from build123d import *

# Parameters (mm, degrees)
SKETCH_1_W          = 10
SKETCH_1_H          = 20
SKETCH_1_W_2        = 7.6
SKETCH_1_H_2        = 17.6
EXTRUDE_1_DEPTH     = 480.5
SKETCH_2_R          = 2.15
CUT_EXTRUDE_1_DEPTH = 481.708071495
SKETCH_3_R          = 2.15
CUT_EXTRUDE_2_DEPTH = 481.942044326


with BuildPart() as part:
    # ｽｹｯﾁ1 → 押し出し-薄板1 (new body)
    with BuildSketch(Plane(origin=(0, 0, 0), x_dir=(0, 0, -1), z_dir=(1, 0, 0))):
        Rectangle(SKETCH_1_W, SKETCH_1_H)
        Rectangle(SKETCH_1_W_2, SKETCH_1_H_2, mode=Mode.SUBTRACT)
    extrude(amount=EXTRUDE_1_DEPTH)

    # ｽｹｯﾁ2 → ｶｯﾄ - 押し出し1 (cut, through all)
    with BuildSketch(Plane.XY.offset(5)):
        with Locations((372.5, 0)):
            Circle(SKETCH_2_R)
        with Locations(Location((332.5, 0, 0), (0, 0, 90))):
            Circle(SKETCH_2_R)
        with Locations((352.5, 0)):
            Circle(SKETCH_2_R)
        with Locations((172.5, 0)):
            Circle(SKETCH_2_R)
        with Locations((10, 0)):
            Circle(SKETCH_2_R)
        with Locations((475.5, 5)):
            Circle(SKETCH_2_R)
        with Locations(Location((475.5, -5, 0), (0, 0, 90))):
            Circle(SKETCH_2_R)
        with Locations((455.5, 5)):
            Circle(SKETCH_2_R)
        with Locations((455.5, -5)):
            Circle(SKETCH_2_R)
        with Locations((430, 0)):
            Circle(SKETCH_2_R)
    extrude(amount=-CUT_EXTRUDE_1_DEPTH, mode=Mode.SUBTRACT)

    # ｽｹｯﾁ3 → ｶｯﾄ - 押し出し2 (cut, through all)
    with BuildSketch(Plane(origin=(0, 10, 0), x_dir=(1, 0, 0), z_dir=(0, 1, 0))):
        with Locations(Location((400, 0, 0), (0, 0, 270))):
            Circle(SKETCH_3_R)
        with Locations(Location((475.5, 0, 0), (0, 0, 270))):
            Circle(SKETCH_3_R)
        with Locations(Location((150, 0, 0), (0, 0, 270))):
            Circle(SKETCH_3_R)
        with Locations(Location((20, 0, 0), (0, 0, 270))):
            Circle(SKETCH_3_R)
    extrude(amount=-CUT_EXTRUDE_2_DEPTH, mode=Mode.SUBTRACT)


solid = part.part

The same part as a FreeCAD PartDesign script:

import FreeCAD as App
import Part
import Sketcher
from FreeCAD import Vector

doc = App.newDocument("Part")
params = doc.addObject("Spreadsheet::Sheet", "Params")
for row, (alias, value) in enumerate([
    ("sketch1_width", "20 mm"),
    ("sketch1_height", "10 mm"),
    ("sketch1_width2", "17.6 mm"),
    ("sketch1_height2", "7.6 mm"),
    ("pad1_length", "480.5 mm"),
    ("sketch2_diameter", "4.3 mm"),
    ("sketch3_diameter", "4.3 mm"),
], start=1):
    params.set(f"A{row}", alias)
    params.set(f"B{row}", "=" + value)
    params.setAlias(f"B{row}", alias)

body = doc.addObject("PartDesign::Body", "Body")

sketch1 = doc.addObject("Sketcher::SketchObject", "Sketch")
body.addObject(sketch1)
sketch1.AttachmentSupport = (doc.YZ_Plane, [""])
sketch1.MapMode = "FlatFace"
sketch1.addGeometry([
    Part.LineSegment(Vector(10, 5, 0), Vector(-10, 5, 0)),
    Part.LineSegment(Vector(-10, 5, 0), Vector(-10, -5, 0)),
    Part.LineSegment(Vector(-10, -5, 0), Vector(10, -5, 0)),
    Part.LineSegment(Vector(10, -5, 0), Vector(10, 5, 0)),
    Part.LineSegment(Vector(-8.8, -3.8, 0), Vector(-8.8, 3.8, 0)),
    Part.LineSegment(Vector(-8.8, 3.8, 0), Vector(8.8, 3.8, 0)),
    Part.LineSegment(Vector(8.8, 3.8, 0), Vector(8.8, -3.8, 0)),
    Part.LineSegment(Vector(8.8, -3.8, 0), Vector(-8.8, -3.8, 0)),
], False)
sketch1.addConstraint([
    Sketcher.Constraint("Coincident", 0, 2, 1, 1),
    Sketcher.Constraint("Coincident", 1, 2, 2, 1),
    Sketcher.Constraint("Coincident", 2, 2, 3, 1),
    Sketcher.Constraint("Coincident", 3, 2, 0, 1),
    Sketcher.Constraint("Coincident", 4, 2, 5, 1),
    Sketcher.Constraint("Coincident", 5, 2, 6, 1),
    Sketcher.Constraint("Coincident", 6, 2, 7, 1),
    Sketcher.Constraint("Coincident", 7, 2, 4, 1),
    Sketcher.Constraint("Horizontal", 0),
    Sketcher.Constraint("Vertical", 1),
    Sketcher.Constraint("Horizontal", 2),
    Sketcher.Constraint("Vertical", 3),
    Sketcher.Constraint("Vertical", 4),
    Sketcher.Constraint("Horizontal", 5),
    Sketcher.Constraint("Vertical", 6),
    Sketcher.Constraint("Horizontal", 7),
    Sketcher.Constraint("Symmetric", 0, 2, 2, 2, -1, 1),
    Sketcher.Constraint("Symmetric", 4, 2, 6, 2, -1, 1),
    Sketcher.Constraint("DistanceX", 0, 2, 0, 1, 20.0),
    Sketcher.Constraint("DistanceY", 1, 2, 1, 1, 10.0),
    Sketcher.Constraint("DistanceX", 5, 1, 5, 2, 17.6),
    Sketcher.Constraint("DistanceY", 4, 1, 4, 2, 7.6),
])
sketch1.setExpression("Constraints[18]", "Params.sketch1_width")
sketch1.setExpression("Constraints[19]", "Params.sketch1_height")
sketch1.setExpression("Constraints[20]", "Params.sketch1_width2")
sketch1.setExpression("Constraints[21]", "Params.sketch1_height2")
pad1 = doc.addObject("PartDesign::Pad", "Pad")
body.addObject(pad1)
pad1.Profile = sketch1
pad1.setExpression("Length", "Params.pad1_length")

sketch2 = doc.addObject("Sketcher::SketchObject", "Sketch001")
body.addObject(sketch2)
sketch2.AttachmentSupport = (doc.XY_Plane, [""])
sketch2.MapMode = "FlatFace"
sketch2.AttachmentOffset = App.Placement(Vector(0, 0, 5), App.Rotation())
sketch2.addGeometry([
    Part.Circle(Vector(372.5, 0, 0), Vector(0, 0, 1), 2.15),
    Part.Circle(Vector(332.5, 0, 0), Vector(0, 0, 1), 2.15),
    Part.Circle(Vector(352.5, 0, 0), Vector(0, 0, 1), 2.15),
    Part.Circle(Vector(172.5, 0, 0), Vector(0, 0, 1), 2.15),
    Part.Circle(Vector(10, 0, 0), Vector(0, 0, 1), 2.15),
    Part.Circle(Vector(475.5, 5, 0), Vector(0, 0, 1), 2.15),
    Part.Circle(Vector(475.5, -5, 0), Vector(0, 0, 1), 2.15),
    Part.Circle(Vector(455.5, 5, 0), Vector(0, 0, 1), 2.15),
    Part.Circle(Vector(455.5, -5, 0), Vector(0, 0, 1), 2.15),
    Part.Circle(Vector(430, 0, 0), Vector(0, 0, 1), 2.15),
], False)
sketch2.addConstraint([
    Sketcher.Constraint("Equal", 0, 1),
    Sketcher.Constraint("Equal", 1, 2),
    Sketcher.Constraint("Equal", 2, 3),
    Sketcher.Constraint("Equal", 3, 4),
    Sketcher.Constraint("Equal", 4, 5),
    Sketcher.Constraint("Equal", 5, 6),
    Sketcher.Constraint("Equal", 6, 7),
    Sketcher.Constraint("Equal", 7, 8),
    Sketcher.Constraint("Equal", 8, 9),
    Sketcher.Constraint("Symmetric", 5, 3, 6, 3, -1),
    Sketcher.Constraint("Symmetric", 7, 3, 8, 3, -1),
    Sketcher.Constraint("PointOnObject", 0, 3, -1),
    Sketcher.Constraint("PointOnObject", 1, 3, -1),
    Sketcher.Constraint("PointOnObject", 2, 3, -1),
    Sketcher.Constraint("PointOnObject", 3, 3, -1),
    Sketcher.Constraint("PointOnObject", 4, 3, -1),
    Sketcher.Constraint("PointOnObject", 9, 3, -1),
    Sketcher.Constraint("Horizontal", 5, 3, 7, 3),
    Sketcher.Constraint("Diameter", 0, 4.3),
    Sketcher.Constraint("DistanceX", -1, 1, 4, 3, 10.0),
    Sketcher.Constraint("DistanceY", -1, 1, 5, 3, 5.0),
    Sketcher.Constraint("DistanceX", -1, 1, 9, 3, 430.0),
    Sketcher.Constraint("DistanceX", 1, 3, 0, 3, 40.0),
    Sketcher.Constraint("DistanceX", 2, 3, 0, 3, 20.0),
    Sketcher.Constraint("DistanceX", 3, 3, 1, 3, 160.0),
    Sketcher.Constraint("DistanceX", 0, 3, 5, 3, 103.0),
    Sketcher.Constraint("DistanceX", 7, 3, 5, 3, 20.0),
    Sketcher.Constraint("DistanceX", -1, 1, 0, 3, 372.5),
])
sketch2.setExpression("Constraints[18]", "Params.sketch2_diameter")
pocket1 = doc.addObject("PartDesign::Pocket", "Pocket")
body.addObject(pocket1)
pocket1.Profile = sketch2
pocket1.Type = "ThroughAll"

sketch3 = doc.addObject("Sketcher::SketchObject", "Sketch002")
body.addObject(sketch3)
sketch3.AttachmentSupport = (doc.XZ_Plane, [""])
sketch3.MapMode = "FlatFace"
sketch3.AttachmentOffset = App.Placement(Vector(0, 0, -10), App.Rotation())
sketch3.addGeometry([
    Part.Circle(Vector(400, 0, 0), Vector(0, 0, 1), 2.15),
    Part.Circle(Vector(475.5, 0, 0), Vector(0, 0, 1), 2.15),
    Part.Circle(Vector(150, 0, 0), Vector(0, 0, 1), 2.15),
    Part.Circle(Vector(20, 0, 0), Vector(0, 0, 1), 2.15),
], False)
sketch3.addConstraint([
    Sketcher.Constraint("Equal", 0, 1),
    Sketcher.Constraint("Equal", 1, 2),
    Sketcher.Constraint("Equal", 2, 3),
    Sketcher.Constraint("PointOnObject", 0, 3, -1),
    Sketcher.Constraint("PointOnObject", 1, 3, -1),
    Sketcher.Constraint("PointOnObject", 2, 3, -1),
    Sketcher.Constraint("PointOnObject", 3, 3, -1),
    Sketcher.Constraint("Diameter", 0, 4.3),
    Sketcher.Constraint("DistanceX", -1, 1, 0, 3, 400.0),
    Sketcher.Constraint("DistanceX", -1, 1, 2, 3, 150.0),
    Sketcher.Constraint("DistanceX", -1, 1, 3, 3, 20.0),
    Sketcher.Constraint("DistanceX", -1, 1, 1, 3, 475.5),
])
sketch3.setExpression("Constraints[7]", "Params.sketch3_diameter")
pocket2 = doc.addObject("PartDesign::Pocket", "Pocket001")
body.addObject(pocket2)
pocket2.Profile = sketch3
pocket2.Type = "ThroughAll"
pocket2.Reversed = True

doc.recompute()
